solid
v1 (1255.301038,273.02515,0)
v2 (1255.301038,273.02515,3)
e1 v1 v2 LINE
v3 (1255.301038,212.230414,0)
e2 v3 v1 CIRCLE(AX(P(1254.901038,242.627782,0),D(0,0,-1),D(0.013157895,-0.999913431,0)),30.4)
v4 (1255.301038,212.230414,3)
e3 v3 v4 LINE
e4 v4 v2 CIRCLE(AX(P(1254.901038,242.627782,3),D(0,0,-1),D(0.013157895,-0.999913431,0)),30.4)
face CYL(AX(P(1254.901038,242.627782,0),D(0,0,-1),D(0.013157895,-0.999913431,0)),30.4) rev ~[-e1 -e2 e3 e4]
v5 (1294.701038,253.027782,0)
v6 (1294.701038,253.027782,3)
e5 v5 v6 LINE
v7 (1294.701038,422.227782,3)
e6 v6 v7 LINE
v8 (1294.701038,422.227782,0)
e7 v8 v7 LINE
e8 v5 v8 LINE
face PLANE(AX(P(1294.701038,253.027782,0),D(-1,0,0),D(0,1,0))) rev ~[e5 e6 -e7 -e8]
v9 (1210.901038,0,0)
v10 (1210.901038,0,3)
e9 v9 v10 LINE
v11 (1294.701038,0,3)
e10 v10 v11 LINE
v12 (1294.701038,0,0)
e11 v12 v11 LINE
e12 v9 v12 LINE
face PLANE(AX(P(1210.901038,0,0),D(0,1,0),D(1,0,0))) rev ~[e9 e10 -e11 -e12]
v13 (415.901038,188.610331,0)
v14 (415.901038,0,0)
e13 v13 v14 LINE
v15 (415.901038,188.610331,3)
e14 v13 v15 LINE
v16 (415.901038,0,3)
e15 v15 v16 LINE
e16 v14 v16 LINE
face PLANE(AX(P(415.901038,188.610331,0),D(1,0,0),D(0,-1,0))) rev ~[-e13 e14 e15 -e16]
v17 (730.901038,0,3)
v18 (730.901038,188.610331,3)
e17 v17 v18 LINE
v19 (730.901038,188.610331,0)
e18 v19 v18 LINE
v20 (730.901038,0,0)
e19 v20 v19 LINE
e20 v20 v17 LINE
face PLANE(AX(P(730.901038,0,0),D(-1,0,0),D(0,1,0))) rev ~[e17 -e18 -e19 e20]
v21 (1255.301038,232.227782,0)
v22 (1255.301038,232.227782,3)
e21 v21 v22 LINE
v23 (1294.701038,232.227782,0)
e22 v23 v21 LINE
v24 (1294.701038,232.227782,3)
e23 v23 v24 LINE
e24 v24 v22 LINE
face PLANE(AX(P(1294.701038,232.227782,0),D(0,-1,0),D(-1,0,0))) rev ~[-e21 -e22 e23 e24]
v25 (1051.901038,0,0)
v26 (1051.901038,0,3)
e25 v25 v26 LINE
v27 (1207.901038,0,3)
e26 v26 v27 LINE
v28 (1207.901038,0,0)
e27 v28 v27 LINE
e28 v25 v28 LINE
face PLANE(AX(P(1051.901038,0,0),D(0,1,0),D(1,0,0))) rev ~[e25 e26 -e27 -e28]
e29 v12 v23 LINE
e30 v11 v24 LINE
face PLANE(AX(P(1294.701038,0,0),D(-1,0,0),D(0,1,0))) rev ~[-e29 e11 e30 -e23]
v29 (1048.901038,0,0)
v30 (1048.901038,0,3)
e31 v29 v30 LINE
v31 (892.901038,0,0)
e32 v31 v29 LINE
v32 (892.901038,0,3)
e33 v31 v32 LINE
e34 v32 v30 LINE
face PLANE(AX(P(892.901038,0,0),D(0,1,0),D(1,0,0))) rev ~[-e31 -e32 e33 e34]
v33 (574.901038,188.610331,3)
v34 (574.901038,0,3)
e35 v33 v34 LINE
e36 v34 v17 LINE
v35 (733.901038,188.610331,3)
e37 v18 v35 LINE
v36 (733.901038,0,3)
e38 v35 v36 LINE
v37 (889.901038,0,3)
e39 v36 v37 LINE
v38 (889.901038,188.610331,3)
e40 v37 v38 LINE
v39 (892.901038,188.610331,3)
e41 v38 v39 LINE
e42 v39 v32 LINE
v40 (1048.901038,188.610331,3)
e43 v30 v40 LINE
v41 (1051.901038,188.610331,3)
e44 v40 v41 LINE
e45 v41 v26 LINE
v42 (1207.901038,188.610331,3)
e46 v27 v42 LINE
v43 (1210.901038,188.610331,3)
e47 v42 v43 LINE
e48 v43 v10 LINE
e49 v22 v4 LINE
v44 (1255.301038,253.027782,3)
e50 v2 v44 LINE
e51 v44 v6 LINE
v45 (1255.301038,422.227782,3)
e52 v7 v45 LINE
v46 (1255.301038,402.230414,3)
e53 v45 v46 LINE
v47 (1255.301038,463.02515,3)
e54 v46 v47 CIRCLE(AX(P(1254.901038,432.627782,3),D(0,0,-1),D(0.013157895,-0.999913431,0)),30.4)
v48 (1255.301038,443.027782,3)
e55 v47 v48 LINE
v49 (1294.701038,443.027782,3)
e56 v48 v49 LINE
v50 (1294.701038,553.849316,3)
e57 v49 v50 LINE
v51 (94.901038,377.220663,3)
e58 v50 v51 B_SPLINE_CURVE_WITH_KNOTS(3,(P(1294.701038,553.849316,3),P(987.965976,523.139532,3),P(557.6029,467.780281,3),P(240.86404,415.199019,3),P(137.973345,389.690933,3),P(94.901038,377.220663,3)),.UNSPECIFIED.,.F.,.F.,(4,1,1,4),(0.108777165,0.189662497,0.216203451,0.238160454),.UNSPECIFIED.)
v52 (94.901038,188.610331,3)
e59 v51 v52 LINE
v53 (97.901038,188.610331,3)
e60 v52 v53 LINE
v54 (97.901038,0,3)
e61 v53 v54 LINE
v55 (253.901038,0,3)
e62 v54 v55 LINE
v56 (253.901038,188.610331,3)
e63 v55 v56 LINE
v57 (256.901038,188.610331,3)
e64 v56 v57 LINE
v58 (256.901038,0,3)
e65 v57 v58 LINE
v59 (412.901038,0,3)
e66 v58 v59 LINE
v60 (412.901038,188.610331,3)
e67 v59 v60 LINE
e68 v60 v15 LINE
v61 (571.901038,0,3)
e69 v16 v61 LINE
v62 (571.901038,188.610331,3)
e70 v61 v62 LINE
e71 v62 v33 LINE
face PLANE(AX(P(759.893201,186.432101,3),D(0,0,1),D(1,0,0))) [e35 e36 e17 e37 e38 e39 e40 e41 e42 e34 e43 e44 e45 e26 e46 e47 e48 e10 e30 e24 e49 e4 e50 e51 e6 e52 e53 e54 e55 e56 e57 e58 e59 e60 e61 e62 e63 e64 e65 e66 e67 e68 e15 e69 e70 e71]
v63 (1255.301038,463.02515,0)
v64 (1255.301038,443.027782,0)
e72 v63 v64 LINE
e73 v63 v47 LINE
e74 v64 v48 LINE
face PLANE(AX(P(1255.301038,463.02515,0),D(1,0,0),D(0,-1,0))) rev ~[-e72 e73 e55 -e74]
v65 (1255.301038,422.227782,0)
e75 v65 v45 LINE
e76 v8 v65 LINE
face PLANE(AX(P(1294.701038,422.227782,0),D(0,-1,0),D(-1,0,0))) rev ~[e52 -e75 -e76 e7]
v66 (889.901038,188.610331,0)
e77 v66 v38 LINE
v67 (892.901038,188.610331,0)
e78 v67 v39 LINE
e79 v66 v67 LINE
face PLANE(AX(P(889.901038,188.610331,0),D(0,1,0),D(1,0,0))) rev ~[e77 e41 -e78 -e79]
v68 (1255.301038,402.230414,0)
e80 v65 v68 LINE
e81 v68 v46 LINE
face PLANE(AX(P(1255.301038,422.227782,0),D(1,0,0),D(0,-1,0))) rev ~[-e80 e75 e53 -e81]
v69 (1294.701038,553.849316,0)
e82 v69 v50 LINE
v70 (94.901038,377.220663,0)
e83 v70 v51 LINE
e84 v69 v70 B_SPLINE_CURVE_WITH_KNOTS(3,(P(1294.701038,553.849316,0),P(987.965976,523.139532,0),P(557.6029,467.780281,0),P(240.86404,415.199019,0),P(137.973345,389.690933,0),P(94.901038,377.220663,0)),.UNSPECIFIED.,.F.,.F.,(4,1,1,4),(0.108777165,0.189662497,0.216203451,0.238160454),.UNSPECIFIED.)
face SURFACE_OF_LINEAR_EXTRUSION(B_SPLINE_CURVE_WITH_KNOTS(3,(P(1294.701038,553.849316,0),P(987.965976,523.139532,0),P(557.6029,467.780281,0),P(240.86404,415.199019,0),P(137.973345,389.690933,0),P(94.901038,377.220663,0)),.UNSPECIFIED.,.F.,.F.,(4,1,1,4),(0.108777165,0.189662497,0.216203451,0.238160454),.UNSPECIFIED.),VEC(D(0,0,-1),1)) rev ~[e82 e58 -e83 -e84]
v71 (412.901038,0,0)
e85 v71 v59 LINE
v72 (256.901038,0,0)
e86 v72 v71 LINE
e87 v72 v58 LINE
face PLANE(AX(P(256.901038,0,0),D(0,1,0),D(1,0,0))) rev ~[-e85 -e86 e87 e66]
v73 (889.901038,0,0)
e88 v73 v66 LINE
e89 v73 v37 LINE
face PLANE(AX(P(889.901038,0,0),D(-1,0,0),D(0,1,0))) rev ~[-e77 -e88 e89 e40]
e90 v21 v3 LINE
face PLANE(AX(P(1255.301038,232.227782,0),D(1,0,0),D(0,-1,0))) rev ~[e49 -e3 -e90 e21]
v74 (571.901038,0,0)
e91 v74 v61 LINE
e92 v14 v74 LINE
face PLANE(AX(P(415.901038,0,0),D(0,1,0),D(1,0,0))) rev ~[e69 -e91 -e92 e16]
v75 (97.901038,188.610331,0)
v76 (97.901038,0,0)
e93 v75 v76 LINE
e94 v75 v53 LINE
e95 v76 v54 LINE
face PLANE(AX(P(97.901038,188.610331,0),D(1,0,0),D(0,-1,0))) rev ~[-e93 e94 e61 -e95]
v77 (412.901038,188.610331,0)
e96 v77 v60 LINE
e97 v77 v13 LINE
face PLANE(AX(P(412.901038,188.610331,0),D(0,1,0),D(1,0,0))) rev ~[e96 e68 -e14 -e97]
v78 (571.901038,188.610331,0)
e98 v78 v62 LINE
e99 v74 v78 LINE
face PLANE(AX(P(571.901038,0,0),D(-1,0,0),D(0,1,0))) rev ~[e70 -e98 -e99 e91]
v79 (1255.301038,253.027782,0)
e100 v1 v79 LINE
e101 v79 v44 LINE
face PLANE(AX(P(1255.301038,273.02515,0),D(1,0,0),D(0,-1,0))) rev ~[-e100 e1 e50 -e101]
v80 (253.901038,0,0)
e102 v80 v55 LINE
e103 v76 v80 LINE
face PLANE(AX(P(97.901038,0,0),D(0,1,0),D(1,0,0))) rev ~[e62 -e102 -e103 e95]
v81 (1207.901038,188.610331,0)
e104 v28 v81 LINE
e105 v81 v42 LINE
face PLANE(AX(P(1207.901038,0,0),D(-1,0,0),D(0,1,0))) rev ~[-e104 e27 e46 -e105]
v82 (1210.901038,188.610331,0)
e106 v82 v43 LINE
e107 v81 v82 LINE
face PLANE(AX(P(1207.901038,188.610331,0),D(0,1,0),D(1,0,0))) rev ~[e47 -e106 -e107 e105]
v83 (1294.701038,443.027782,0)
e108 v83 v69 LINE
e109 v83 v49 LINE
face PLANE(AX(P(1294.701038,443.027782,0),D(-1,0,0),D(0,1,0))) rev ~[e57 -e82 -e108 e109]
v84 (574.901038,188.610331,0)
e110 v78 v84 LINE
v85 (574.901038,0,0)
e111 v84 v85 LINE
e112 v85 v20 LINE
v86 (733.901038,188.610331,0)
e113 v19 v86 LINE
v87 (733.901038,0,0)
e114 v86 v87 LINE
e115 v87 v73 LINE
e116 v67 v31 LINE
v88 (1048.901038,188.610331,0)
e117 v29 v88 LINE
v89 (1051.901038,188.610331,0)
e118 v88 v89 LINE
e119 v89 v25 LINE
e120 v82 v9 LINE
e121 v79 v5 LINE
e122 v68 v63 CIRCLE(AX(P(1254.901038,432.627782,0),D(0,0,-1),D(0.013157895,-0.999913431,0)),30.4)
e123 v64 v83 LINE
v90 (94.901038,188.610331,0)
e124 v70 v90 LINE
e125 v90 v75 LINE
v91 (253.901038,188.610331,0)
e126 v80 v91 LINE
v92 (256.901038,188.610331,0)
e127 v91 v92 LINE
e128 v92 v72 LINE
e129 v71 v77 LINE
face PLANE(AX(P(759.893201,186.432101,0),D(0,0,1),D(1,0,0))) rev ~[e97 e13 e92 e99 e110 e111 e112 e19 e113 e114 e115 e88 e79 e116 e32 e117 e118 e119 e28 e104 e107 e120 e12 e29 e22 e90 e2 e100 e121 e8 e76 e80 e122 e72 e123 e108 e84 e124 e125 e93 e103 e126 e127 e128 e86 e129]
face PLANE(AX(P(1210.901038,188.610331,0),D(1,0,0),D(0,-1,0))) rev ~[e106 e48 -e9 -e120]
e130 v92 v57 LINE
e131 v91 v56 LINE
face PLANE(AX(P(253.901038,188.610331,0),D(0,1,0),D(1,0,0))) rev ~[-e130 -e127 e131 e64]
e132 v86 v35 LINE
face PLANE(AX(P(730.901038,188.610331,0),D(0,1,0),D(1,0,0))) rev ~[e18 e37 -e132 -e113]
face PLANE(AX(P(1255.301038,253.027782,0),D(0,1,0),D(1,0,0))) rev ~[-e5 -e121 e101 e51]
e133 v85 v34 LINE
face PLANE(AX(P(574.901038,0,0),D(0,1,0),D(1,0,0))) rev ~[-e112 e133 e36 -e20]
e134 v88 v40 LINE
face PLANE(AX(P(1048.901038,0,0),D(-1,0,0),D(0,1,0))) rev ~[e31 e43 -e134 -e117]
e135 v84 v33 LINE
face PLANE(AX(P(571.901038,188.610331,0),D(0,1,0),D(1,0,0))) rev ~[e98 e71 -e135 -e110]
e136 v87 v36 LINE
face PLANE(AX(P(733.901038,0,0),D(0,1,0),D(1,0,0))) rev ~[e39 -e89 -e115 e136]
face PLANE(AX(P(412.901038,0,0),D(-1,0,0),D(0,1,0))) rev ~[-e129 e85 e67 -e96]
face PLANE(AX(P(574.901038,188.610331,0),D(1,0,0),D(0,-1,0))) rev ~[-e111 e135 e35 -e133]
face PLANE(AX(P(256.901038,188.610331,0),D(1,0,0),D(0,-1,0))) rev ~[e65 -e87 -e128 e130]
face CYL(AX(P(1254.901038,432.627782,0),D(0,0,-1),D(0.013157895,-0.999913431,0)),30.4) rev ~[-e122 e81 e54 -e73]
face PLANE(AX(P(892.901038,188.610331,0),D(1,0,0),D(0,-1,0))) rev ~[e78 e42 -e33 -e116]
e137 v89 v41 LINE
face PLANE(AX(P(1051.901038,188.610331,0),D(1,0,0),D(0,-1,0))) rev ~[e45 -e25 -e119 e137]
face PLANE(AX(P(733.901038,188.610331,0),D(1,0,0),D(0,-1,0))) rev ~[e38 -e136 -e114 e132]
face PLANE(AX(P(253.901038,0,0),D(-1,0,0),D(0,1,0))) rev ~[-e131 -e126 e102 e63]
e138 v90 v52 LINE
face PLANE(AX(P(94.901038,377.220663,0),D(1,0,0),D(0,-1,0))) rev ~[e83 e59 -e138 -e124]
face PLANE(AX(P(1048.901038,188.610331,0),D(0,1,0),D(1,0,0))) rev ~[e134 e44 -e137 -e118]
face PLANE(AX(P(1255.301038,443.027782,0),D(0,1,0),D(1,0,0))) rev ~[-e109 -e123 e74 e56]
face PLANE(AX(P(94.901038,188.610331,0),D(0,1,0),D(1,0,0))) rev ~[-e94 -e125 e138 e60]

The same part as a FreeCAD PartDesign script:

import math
import FreeCAD as App
import Part
import Sketcher

doc = App.newDocument("Part")
body = doc.addObject("PartDesign::Body", "Body")

sketch1 = body.newObject("Sketcher::SketchObject", "Sketch")
sketch1.AttachmentSupport = (doc.getObject("XY_Plane"), [""])
sketch1.MapMode = "FlatFace"
sketch1.addGeometry([
    Part.LineSegment(App.Vector(1255.301038, 443.027782, 0), App.Vector(1294.701038, 443.027782, 0)),
    Part.LineSegment(App.Vector(1294.701038, 443.027782, 0), App.Vector(1294.701038, 553.849316, 0)),
    Part.BSplineCurve([App.Vector(1294.701038, 553.849316, 0), App.Vector(987.965976, 523.139532, 0), App.Vector(557.6029, 467.780281, 0), App.Vector(240.86404, 415.199019, 0), App.Vector(137.973345, 389.690933, 0), App.Vector(94.901038, 377.220663, 0)], [4, 1, 1, 4], [0.108777165, 0.189662497, 0.216203451, 0.238160454], False, 3, [1, 1, 1, 1, 1, 1], False),
    Part.LineSegment(App.Vector(94.901038, 377.220663, 0), App.Vector(94.901038, 188.610331, 0)),
    Part.LineSegment(App.Vector(94.901038, 188.610331, 0), App.Vector(97.901038, 188.610331, 0)),
    Part.LineSegment(App.Vector(97.901038, 188.610331, 0), App.Vector(97.901038, 0, 0)),
    Part.LineSegment(App.Vector(97.901038, 0, 0), App.Vector(253.901038, 0, 0)),
    Part.LineSegment(App.Vector(253.901038, 0, 0), App.Vector(253.901038, 188.610331, 0)),
    Part.LineSegment(App.Vector(253.901038, 188.610331, 0), App.Vector(256.901038, 188.610331, 0)),
    Part.LineSegment(App.Vector(256.901038, 188.610331, 0), App.Vector(256.901038, 0, 0)),
    Part.LineSegment(App.Vector(256.901038, 0, 0), App.Vector(412.901038, 0, 0)),
    Part.LineSegment(App.Vector(412.901038, 0, 0), App.Vector(412.901038, 188.610331, 0)),
    Part.LineSegment(App.Vector(412.901038, 188.610331, 0), App.Vector(415.901038, 188.610331, 0)),
    Part.LineSegment(App.Vector(415.901038, 188.610331, 0), App.Vector(415.901038, 0, 0)),
    Part.LineSegment(App.Vector(415.901038, 0, 0), App.Vector(571.901038, 0, 0)),
    Part.LineSegment(App.Vector(571.901038, 0, 0), App.Vector(571.901038, 188.610331, 0)),
    Part.LineSegment(App.Vector(571.901038, 188.610331, 0), App.Vector(574.901038, 188.610331, 0)),
    Part.LineSegment(App.Vector(574.901038, 188.610331, 0), App.Vector(574.901038, 0, 0)),
    Part.LineSegment(App.Vector(574.901038, 0, 0), App.Vector(730.901038, 0, 0)),
    Part.LineSegment(App.Vector(730.901038, 0, 0), App.Vector(730.901038, 188.610331, 0)),
    Part.LineSegment(App.Vector(730.901038, 188.610331, 0), App.Vector(733.901038, 188.610331, 0)),
    Part.LineSegment(App.Vector(733.901038, 188.610331, 0), App.Vector(733.901038, 0, 0)),
    Part.LineSegment(App.Vector(733.901038, 0, 0), App.Vector(889.901038, 0, 0)),
    Part.LineSegment(App.Vector(889.901038, 0, 0), App.Vector(889.901038, 188.610331, 0)),
    Part.LineSegment(App.Vector(889.901038, 188.610331, 0), App.Vector(892.901038, 188.610331, 0)),
    Part.LineSegment(App.Vector(892.901038, 188.610331, 0), App.Vector(892.901038, 0, 0)),
    Part.LineSegment(App.Vector(892.901038, 0, 0), App.Vector(1048.901038, 0, 0)),
    Part.LineSegment(App.Vector(1048.901038, 0, 0), App.Vector(1048.901038, 188.610331, 0)),
    Part.LineSegment(App.Vector(1048.901038, 188.610331, 0), App.Vector(1051.901038, 188.610331, 0)),
    Part.LineSegment(App.Vector(1051.901038, 188.610331, 0), App.Vector(1051.901038, 0, 0)),
    Part.LineSegment(App.Vector(1051.901038, 0, 0), App.Vector(1207.901038, 0, 0)),
    Part.LineSegment(App.Vector(1207.901038, 0, 0), App.Vector(1207.901038, 188.610331, 0)),
    Part.LineSegment(App.Vector(1207.901038, 188.610331, 0), App.Vector(1210.901038, 188.610331, 0)),
    Part.LineSegment(App.Vector(1210.901038, 188.610331, 0), App.Vector(1210.901038, 0, 0)),
    Part.LineSegment(App.Vector(1210.901038, 0, 0), App.Vector(1294.701038, 0, 0)),
    Part.LineSegment(App.Vector(1294.701038, 0, 0), App.Vector(1294.701038, 232.227782, 0)),
    Part.LineSegment(App.Vector(1294.701038, 232.227782, 0), App.Vector(1255.301038, 232.227782, 0)),
    Part.LineSegment(App.Vector(1255.301038, 232.227782, 0), App.Vector(1255.301038, 212.230414, 0)),
    Part.ArcOfCircle(Part.Circle(App.Vector(1254.901038, 242.627782, 0), App.Vector(0, 0, 1), 30.4), math.radians(89.246086), math.radians(270.753914)),
    Part.LineSegment(App.Vector(1255.301038, 273.02515, 0), App.Vector(1255.301038, 253.027782, 0)),
    Part.LineSegment(App.Vector(1255.301038, 253.027782, 0), App.Vector(1294.701038, 253.027782, 0)),
    Part.LineSegment(App.Vector(1294.701038, 253.027782, 0), App.Vector(1294.701038, 422.227782, 0)),
    Part.LineSegment(App.Vector(1294.701038, 422.227782, 0), App.Vector(1255.301038, 422.227782, 0)),
    Part.LineSegment(App.Vector(1255.301038, 422.227782, 0), App.Vector(1255.301038, 402.230414, 0)),
    Part.ArcOfCircle(Part.Circle(App.Vector(1254.901038, 432.627782, 0), App.Vector(0, 0, 1), 30.4), math.radians(89.246086), math.radians(270.753914)),
    Part.LineSegment(App.Vector(1255.301038, 463.02515, 0), App.Vector(1255.301038, 443.027782, 0)),
], False)
sketch1.addConstraint([
    Sketcher.Constraint("Block", 2),
    Sketcher.Constraint("Coincident", 0, 2, 1, 1),
    Sketcher.Constraint("Coincident", 1, 2, 2, 1),
    Sketcher.Constraint("Coincident", 2, 2, 3, 1),
    Sketcher.Constraint("Coincident", 3, 2, 4, 1),
    Sketcher.Constraint("Coincident", 4, 2, 5, 1),
    Sketcher.Constraint("Coincident", 5, 2, 6, 1),
    Sketcher.Constraint("Coincident", 6, 2, 7, 1),
    Sketcher.Constraint("Coincident", 7, 2, 8, 1),
    Sketcher.Constraint("Coincident", 8, 2, 9, 1),
    Sketcher.Constraint("Coincident", 9, 2, 10, 1),
    Sketcher.Constraint("Coincident", 10, 2, 11, 1),
    Sketcher.Constraint("Coincident", 11, 2, 12, 1),
    Sketcher.Constraint("Coincident", 12, 2, 13, 1),
    Sketcher.Constraint("Coincident", 13, 2, 14, 1),
    Sketcher.Constraint("Coincident", 14, 2, 15, 1),
    Sketcher.Constraint("Coincident", 15, 2, 16, 1),
    Sketcher.Constraint("Coincident", 16, 2, 17, 1),
    Sketcher.Constraint("Coincident", 17, 2, 18, 1),
    Sketcher.Constraint("Coincident", 18, 2, 19, 1),
    Sketcher.Constraint("Coincident", 19, 2, 20, 1),
    Sketcher.Constraint("Coincident", 20, 2, 21, 1),
    Sketcher.Constraint("Coincident", 21, 2, 22, 1),
    Sketcher.Constraint("Coincident", 22, 2, 23, 1),
    Sketcher.Constraint("Coincident", 23, 2, 24, 1),
    Sketcher.Constraint("Coincident", 24, 2, 25, 1),
    Sketcher.Constraint("Coincident", 25, 2, 26, 1),
    Sketcher.Constraint("Coincident", 26, 2, 27, 1),
    Sketcher.Constraint("Coincident", 27, 2, 28, 1),
    Sketcher.Constraint("Coincident", 28, 2, 29, 1),
    Sketcher.Constraint("Coincident", 29, 2, 30, 1),
    Sketcher.Constraint("Coincident", 30, 2, 31, 1),
    Sketcher.Constraint("Coincident", 31, 2, 32, 1),
    Sketcher.Constraint("Coincident", 32, 2, 33, 1),
    Sketcher.Constraint("Coincident", 33, 2, 34, 1),
    Sketcher.Constraint("Coincident", 34, 2, 35, 1),
    Sketcher.Constraint("Coincident", 35, 2, 36, 1),
    Sketcher.Constraint("Coincident", 36, 2, 37, 1),
    Sketcher.Constraint("Coincident", 37, 2, 38, 2),
    Sketcher.Constraint("Coincident", 38, 1, 39, 1),
    Sketcher.Constraint("Coincident", 39, 2, 40, 1),
    Sketcher.Constraint("Coincident", 40, 2, 41, 1),
    Sketcher.Constraint("Coincident", 41, 2, 42, 1),
    Sketcher.Constraint("Coincident", 42, 2, 43, 1),
    Sketcher.Constraint("Coincident", 43, 2, 44, 2),
    Sketcher.Constraint("Coincident", 44, 1, 45, 1),
    Sketcher.Constraint("Coincident", 45, 2, 0, 1),
    Sketcher.Constraint("Horizontal", 0),
    Sketcher.Constraint("Vertical", 1),
    Sketcher.Constraint("Vertical", 3),
    Sketcher.Constraint("Horizontal", 4),
    Sketcher.Constraint("Vertical", 5),
    Sketcher.Constraint("Horizontal", 6),
    Sketcher.Constraint("Vertical", 7),
    Sketcher.Constraint("Horizontal", 8),
    Sketcher.Constraint("Vertical", 9),
    Sketcher.Constraint("Horizontal", 10),
    Sketcher.Constraint("Vertical", 11),
    Sketcher.Constraint("Horizontal", 12),
    Sketcher.Constraint("Vertical", 13),
    Sketcher.Constraint("Horizontal", 14),
    Sketcher.Constraint("Vertical", 15),
    Sketcher.Constraint("Horizontal", 16),
    Sketcher.Constraint("Vertical", 17),
    Sketcher.Constraint("Horizontal", 18),
    Sketcher.Constraint("Vertical", 19),
    Sketcher.Constraint("Horizontal", 20),
    Sketcher.Constraint("Vertical", 21),
    Sketcher.Constraint("Horizontal", 22),
    Sketcher.Constraint("Vertical", 23),
    Sketcher.Constraint("Horizontal", 24),
    Sketcher.Constraint("Vertical", 25),
    Sketcher.Constraint("Horizontal", 26),
    Sketcher.Constraint("Vertical", 27),
    Sketcher.Constraint("Horizontal", 28),
    Sketcher.Constraint("Vertical", 29),
    Sketcher.Constraint("Horizontal", 30),
    Sketcher.Constraint("Vertical", 31),
    Sketcher.Constraint("Horizontal", 32),
    Sketcher.Constraint("Vertical", 33),
    Sketcher.Constraint("Horizontal", 34),
    Sketcher.Constraint("Vertical", 35),
    Sketcher.Constraint("Horizontal", 36),
    Sketcher.Constraint("Vertical", 37),
    Sketcher.Constraint("Vertical", 39),
    Sketcher.Constraint("Horizontal", 40),
    Sketcher.Constraint("Vertical", 41),
    Sketcher.Constraint("Horizontal", 42),
    Sketcher.Constraint("Vertical", 43),
    Sketcher.Constraint("Vertical", 45),
    Sketcher.Constraint("Equal", 38, 44),
    Sketcher.Constraint("PointOnObject", 5, 2, -1),
    Sketcher.Constraint("PointOnObject", 9, 2, -1),
    Sketcher.Constraint("PointOnObject", 13, 2, -1),
    Sketcher.Constraint("PointOnObject", 17, 2, -1),
    Sketcher.Constraint("PointOnObject", 21, 2, -1),
    Sketcher.Constraint("PointOnObject", 25, 2, -1),
    Sketcher.Constraint("PointOnObject", 29, 2, -1),
    Sketcher.Constraint("PointOnObject", 33, 2, -1),
    Sketcher.Constraint("Horizontal", 4, 2, 7, 2),
    Sketcher.Constraint("Horizontal", 8, 2, 11, 2),
    Sketcher.Constraint("Horizontal", 12, 2, 15, 2),
    Sketcher.Constraint("Horizontal", 16, 2, 19, 2),
    Sketcher.Constraint("Horizontal", 20, 2, 23, 2),
    Sketcher.Constraint("Horizontal", 24, 2, 27, 2),
    Sketcher.Constraint("Horizontal", 28, 2, 31, 2),
    Sketcher.Constraint("Vertical", 38, 3, 44, 3),
    Sketcher.Constraint("Vertical", 1, 2, 34, 2),
    Sketcher.Constraint("Vertical", 37, 2, 38, 1),
    Sketcher.Constraint("Vertical", 35, 2, 40, 2),
    Sketcher.Constraint("Vertical", 39, 2, 42, 2),
    Sketcher.Constraint("Vertical", 43, 2, 44, 1),
    Sketcher.Constraint("Equal", 4, 8),
    Sketcher.Constraint("Equal", 6, 10),
    Sketcher.Constraint("Equal", 8, 12),
    Sketcher.Constraint("Equal", 10, 14),
    Sketcher.Constraint("Equal", 12, 16),
    Sketcher.Constraint("Equal", 14, 18),
    Sketcher.Constraint("Equal", 16, 20),
    Sketcher.Constraint("Equal", 18, 22),
    Sketcher.Constraint("Equal", 20, 24),
    Sketcher.Constraint("Equal", 22, 26),
    Sketcher.Constraint("Equal", 24, 28),
    Sketcher.Constraint("Equal", 26, 30),
    Sketcher.Constraint("Equal", 28, 32),
    Sketcher.Constraint("Equal", 3, 5),
    Sketcher.Constraint("Equal", 37, 39),
    Sketcher.Constraint("Equal", 39, 43),
    Sketcher.Constraint("Equal", 43, 45),
    Sketcher.Constraint("Radius", 38, 30.4),
    Sketcher.Constraint("DistanceX", 4, 1, 4, 2, 3.0),
    Sketcher.Constraint("DistanceX", 6, 1, 6, 2, 156.0),
    Sketcher.Constraint("DistanceX", 0, 1, 0, 2, 39.4),
    Sketcher.Constraint("DistanceY", 41, 1, 41, 2, 169.2),
    Sketcher.Constraint("DistanceY", 38, 3, 44, 3, 190.0),
    Sketcher.Constraint("DistanceX", 3, 2, 38, 3, 1160.0),
    Sketcher.Constraint("DistanceY", 35, 1, 35, 2, 232.227782),
])
pad1 = body.newObject("PartDesign::Pad", "Pad")
pad1.Profile = sketch1
pad1.Length = 3

doc.recompute()
